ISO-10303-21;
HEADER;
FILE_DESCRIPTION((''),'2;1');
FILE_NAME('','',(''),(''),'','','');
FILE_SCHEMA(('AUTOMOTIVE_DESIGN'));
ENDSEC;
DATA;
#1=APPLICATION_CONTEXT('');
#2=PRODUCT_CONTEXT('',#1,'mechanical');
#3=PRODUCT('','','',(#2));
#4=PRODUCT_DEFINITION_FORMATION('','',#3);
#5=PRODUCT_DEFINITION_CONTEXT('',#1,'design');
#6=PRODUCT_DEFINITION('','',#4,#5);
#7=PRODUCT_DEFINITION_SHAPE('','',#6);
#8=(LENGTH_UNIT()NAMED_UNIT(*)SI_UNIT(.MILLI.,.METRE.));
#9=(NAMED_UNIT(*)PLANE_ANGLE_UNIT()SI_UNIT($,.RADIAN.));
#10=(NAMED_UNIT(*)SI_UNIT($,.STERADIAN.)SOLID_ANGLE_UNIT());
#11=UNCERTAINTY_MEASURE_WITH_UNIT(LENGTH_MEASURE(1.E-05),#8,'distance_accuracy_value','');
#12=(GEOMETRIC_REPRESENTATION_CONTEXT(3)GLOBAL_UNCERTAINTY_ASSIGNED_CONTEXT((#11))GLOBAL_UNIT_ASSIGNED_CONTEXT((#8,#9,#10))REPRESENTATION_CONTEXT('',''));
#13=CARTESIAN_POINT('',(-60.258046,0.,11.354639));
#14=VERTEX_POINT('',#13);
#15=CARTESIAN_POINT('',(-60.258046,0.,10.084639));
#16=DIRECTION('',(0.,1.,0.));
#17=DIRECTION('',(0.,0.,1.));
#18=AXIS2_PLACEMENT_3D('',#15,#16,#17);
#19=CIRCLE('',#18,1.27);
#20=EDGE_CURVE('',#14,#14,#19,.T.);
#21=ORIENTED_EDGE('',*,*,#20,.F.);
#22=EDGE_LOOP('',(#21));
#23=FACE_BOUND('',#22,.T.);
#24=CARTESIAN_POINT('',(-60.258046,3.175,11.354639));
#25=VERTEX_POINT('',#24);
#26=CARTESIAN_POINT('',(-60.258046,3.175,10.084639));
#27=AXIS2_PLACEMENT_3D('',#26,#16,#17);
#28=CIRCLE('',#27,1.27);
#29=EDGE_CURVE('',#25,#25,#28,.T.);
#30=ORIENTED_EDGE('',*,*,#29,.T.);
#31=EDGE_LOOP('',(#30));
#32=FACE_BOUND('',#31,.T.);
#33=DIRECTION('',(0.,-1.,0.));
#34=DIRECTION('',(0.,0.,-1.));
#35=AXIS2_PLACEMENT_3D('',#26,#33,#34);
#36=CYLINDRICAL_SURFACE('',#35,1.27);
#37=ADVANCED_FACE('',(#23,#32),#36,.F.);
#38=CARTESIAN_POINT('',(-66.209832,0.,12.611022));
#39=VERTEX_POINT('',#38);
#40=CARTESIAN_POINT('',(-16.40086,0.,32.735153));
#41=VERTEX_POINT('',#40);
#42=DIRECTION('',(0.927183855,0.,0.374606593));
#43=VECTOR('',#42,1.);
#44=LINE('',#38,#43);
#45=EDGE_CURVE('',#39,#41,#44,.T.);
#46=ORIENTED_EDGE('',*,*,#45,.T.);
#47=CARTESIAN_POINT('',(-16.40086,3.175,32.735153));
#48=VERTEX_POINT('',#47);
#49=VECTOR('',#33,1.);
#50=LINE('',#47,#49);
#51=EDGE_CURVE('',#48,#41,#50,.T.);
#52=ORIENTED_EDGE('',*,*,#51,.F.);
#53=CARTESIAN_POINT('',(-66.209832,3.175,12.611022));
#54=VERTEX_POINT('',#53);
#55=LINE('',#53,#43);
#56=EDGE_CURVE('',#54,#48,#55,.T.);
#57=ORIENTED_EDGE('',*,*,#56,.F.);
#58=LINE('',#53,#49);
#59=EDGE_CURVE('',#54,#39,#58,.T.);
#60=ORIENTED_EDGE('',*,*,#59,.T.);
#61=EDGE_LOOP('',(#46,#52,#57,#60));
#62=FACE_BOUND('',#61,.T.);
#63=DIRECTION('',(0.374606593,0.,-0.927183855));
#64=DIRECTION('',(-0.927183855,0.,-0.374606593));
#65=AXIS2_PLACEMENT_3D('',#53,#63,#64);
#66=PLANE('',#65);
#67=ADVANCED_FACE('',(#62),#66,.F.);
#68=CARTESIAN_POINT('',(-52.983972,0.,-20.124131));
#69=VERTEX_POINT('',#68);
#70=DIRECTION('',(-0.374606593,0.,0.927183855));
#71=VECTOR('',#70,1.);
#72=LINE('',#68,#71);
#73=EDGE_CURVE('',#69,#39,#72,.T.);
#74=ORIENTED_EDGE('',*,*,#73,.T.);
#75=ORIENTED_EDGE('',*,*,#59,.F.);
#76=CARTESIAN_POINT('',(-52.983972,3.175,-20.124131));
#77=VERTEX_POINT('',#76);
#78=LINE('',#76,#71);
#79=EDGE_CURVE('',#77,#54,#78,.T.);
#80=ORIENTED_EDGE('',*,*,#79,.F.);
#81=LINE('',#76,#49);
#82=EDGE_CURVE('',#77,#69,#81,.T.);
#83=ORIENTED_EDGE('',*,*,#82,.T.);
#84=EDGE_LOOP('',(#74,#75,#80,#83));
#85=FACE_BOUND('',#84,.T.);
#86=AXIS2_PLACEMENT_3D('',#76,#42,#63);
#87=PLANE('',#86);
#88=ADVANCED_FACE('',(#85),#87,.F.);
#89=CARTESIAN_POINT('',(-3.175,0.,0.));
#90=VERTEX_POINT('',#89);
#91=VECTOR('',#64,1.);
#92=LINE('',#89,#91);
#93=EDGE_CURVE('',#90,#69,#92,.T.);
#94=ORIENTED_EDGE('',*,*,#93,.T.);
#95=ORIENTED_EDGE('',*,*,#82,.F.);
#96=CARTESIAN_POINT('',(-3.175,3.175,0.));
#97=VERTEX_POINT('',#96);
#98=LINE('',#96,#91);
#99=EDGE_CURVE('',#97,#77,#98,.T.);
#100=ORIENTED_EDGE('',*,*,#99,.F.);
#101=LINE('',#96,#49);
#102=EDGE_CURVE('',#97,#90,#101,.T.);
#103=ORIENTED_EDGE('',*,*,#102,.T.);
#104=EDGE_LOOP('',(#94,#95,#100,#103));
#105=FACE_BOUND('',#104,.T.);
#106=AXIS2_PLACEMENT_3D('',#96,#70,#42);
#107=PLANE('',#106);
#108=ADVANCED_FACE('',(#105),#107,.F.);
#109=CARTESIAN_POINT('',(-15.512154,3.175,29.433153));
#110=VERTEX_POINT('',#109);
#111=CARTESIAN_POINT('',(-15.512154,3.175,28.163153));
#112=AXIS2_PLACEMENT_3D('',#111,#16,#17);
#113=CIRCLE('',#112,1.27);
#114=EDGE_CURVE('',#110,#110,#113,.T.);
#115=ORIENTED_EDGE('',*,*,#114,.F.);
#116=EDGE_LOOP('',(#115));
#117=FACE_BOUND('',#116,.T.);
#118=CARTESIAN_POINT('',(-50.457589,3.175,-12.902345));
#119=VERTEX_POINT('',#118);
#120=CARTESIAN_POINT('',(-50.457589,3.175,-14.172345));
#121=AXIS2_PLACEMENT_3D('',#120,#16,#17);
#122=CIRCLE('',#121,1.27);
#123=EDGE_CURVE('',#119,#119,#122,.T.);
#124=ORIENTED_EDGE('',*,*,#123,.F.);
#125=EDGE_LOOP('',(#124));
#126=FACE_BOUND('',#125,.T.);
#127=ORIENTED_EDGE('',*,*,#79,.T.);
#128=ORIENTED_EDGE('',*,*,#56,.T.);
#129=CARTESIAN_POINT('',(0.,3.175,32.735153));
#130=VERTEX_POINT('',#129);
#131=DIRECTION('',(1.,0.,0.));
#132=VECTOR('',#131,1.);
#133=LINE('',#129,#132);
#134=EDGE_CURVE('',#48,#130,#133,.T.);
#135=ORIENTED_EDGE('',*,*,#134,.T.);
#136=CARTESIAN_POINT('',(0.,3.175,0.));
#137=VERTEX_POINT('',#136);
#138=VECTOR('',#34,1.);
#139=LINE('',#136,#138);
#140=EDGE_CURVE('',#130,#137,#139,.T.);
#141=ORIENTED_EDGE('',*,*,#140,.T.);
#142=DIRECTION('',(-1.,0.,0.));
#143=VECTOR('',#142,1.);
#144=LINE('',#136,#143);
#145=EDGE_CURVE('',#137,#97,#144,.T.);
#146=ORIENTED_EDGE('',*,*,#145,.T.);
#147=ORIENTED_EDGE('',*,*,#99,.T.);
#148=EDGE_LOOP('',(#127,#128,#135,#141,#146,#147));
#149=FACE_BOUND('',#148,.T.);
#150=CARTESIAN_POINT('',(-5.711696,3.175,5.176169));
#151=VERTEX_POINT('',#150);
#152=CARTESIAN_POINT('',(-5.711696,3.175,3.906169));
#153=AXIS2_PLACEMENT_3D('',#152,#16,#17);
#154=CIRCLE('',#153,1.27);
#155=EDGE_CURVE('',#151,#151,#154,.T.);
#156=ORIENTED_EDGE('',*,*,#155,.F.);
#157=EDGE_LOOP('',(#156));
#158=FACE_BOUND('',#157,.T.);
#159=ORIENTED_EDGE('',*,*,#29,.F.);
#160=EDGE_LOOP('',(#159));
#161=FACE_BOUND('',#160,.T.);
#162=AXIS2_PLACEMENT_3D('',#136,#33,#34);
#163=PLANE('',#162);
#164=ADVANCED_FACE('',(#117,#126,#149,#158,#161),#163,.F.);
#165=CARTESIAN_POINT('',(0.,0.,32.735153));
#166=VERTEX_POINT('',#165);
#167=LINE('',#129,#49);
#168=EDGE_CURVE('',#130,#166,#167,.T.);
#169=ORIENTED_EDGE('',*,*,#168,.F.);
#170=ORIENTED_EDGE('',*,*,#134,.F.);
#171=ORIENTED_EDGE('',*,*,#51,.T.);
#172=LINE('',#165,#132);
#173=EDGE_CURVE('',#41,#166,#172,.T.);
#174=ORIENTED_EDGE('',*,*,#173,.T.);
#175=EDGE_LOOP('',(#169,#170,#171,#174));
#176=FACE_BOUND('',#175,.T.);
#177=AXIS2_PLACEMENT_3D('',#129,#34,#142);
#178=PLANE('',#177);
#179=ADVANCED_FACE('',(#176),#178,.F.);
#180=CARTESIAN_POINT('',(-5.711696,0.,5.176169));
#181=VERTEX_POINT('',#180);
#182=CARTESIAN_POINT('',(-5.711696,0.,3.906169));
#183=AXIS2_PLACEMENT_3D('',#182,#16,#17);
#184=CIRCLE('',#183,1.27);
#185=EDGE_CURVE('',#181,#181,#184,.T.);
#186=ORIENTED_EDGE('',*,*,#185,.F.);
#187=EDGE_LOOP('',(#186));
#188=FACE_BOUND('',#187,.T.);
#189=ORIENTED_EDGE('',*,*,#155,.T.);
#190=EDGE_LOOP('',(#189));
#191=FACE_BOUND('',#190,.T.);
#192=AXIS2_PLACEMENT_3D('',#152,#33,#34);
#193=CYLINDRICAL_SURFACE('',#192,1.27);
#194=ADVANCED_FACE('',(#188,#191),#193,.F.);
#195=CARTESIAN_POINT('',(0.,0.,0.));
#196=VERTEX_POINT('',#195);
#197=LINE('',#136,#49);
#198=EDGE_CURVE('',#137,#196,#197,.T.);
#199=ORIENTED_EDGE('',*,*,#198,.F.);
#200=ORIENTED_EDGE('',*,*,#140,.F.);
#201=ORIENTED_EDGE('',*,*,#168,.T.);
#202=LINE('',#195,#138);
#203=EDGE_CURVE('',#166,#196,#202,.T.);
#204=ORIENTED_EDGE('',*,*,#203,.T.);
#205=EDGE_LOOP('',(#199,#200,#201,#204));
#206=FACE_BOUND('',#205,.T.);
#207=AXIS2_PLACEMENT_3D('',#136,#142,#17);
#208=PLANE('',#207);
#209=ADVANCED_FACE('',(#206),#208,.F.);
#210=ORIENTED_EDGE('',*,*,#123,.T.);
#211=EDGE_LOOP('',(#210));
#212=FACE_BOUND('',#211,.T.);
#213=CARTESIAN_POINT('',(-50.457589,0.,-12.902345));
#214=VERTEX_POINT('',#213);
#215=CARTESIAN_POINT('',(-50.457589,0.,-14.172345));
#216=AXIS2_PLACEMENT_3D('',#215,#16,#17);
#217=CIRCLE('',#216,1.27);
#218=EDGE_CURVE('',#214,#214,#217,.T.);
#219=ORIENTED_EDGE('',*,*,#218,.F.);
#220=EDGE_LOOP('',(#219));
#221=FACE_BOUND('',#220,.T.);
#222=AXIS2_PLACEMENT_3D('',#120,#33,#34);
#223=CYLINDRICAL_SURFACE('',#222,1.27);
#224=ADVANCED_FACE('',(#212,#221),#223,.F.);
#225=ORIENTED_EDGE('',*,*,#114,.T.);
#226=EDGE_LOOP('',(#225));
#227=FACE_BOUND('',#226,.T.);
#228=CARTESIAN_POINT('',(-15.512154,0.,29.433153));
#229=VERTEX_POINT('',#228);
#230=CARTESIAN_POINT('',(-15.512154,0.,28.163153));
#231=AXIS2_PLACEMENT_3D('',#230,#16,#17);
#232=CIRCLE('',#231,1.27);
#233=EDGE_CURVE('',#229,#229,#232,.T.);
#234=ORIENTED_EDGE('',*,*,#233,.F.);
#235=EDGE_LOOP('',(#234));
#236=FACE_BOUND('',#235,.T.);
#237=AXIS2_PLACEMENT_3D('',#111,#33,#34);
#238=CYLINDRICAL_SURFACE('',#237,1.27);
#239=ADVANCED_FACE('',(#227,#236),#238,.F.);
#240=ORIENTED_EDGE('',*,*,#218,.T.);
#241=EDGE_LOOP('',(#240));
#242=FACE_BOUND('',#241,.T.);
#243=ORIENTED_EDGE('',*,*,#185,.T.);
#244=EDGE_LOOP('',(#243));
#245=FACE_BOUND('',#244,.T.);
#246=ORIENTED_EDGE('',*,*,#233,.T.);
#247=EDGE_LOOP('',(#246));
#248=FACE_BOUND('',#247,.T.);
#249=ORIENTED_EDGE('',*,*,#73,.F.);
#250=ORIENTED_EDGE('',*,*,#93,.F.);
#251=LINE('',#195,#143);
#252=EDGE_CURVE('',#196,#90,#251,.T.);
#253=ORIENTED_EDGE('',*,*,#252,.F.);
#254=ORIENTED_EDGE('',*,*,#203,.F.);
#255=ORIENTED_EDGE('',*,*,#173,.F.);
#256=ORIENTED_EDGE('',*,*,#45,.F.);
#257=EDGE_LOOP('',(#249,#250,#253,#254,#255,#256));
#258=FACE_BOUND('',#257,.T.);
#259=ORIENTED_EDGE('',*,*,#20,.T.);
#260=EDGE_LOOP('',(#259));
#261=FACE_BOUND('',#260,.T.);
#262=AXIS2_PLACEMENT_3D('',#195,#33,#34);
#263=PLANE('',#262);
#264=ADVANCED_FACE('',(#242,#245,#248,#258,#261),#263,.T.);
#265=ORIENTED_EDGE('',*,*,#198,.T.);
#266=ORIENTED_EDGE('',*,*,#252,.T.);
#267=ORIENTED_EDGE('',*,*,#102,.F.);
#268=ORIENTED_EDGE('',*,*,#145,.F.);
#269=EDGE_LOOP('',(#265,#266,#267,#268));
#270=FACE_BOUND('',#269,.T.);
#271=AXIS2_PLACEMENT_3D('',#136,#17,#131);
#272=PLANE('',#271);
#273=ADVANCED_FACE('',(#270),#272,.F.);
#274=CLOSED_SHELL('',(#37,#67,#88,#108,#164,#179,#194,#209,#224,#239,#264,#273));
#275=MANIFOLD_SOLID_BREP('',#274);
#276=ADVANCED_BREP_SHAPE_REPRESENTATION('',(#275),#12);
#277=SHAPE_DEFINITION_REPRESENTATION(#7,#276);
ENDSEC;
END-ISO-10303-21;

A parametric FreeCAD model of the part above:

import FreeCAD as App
import Part
import Sketcher
from FreeCAD import Vector
Q = App.Units.Quantity


def add_polygon(sketch, points):
    """Adds a closed chain of lines whose ends are joined by coincident constraints."""
    first, n = sketch.GeometryCount, len(points)
    for a, b in zip(points, points[1:] + points[:1]):
        sketch.addGeometry(Part.LineSegment(App.Vector(*a, 0), App.Vector(*b, 0)), False)
    for i in range(n):
        sketch.addConstraint(Sketcher.Constraint("Coincident", first + i, 2, first + (i + 1) % n, 1))

doc = App.newDocument("Part")
body = doc.addObject("PartDesign::Body", "Body")

sketch1 = body.newObject("Sketcher::SketchObject", "Sketch")
sketch1.AttachmentSupport = (doc.getObject("XZ_Plane"), [""])
sketch1.MapMode = "FlatFace"
add_polygon(sketch1, [(0, 0), (-3.2, 0), (-53, -20.1), (-66.2, 12.6), (-16.4, 32.7), (0, 32.7)])
sketch1.addGeometry(Part.Circle(Vector(-60.3, 10.1, 0), Vector(0, 0, 1), 1.3), False)
sketch1.addGeometry(Part.Circle(Vector(-15.5, 28.2, 0), Vector(0, 0, 1), 1.3), False)
sketch1.addGeometry(Part.Circle(Vector(-50.5, -14.2, 0), Vector(0, 0, 1), 1.3), False)
sketch1.addGeometry(Part.Circle(Vector(-5.7, 3.9, 0), Vector(0, 0, 1), 1.3), False)
sketch1.addConstraint([
    Sketcher.Constraint("Horizontal", 0),
    Sketcher.Constraint("Horizontal", 4),
    Sketcher.Constraint("Vertical", 5),
    Sketcher.Constraint("Coincident", 5, 2, -1, 1),
    Sketcher.Constraint("Equal", 6, 7),
    Sketcher.Constraint("Equal", 7, 8),
    Sketcher.Constraint("Equal", 8, 9),
    Sketcher.Constraint("Perpendicular", 1, 2),
    Sketcher.Constraint("Perpendicular", 2, 3),
    Sketcher.Constraint("Equal", 1, 3),
    Sketcher.Constraint("Diameter", 6, Q("0.1 in")),
    Sketcher.Constraint("Angle", 1, Q("-158 deg")),
    Sketcher.Constraint("Distance", 2, Q("1.39 in")),
    Sketcher.Constraint("DistanceX", 0, 2, 0, 1, Q("0.125 in")),
    Sketcher.Constraint("DistanceY", 7, 3, 3, 2, Q("0.18 in")),
    Sketcher.Constraint("DistanceY", 8, 3, 7, 3, 42.335498),
    Sketcher.Constraint("DistanceY", 1, 2, 9, 3, 24.0303),
    Sketcher.Constraint("DistanceY", -1, 1, 6, 3, 10.084639),
    Sketcher.Constraint("DistanceX", 8, 3, -1, 1, 50.457589),
    Sketcher.Constraint("DistanceY", -1, 1, 9, 3, 3.906169),
    Sketcher.Constraint("DistanceX", 6, 3, 9, 3, 54.546351),
    Sketcher.Constraint("DistanceX", 1, 2, 7, 3, 37.471818),
    Sketcher.Constraint("DistanceX", 6, 3, -1, 1, 60.258046),
])
pad1 = body.newObject("PartDesign::Pad", "Pad")
pad1.Profile = sketch1
pad1.Length = Q("0.125 in")
pad1.Reversed = True

doc.recompute()
